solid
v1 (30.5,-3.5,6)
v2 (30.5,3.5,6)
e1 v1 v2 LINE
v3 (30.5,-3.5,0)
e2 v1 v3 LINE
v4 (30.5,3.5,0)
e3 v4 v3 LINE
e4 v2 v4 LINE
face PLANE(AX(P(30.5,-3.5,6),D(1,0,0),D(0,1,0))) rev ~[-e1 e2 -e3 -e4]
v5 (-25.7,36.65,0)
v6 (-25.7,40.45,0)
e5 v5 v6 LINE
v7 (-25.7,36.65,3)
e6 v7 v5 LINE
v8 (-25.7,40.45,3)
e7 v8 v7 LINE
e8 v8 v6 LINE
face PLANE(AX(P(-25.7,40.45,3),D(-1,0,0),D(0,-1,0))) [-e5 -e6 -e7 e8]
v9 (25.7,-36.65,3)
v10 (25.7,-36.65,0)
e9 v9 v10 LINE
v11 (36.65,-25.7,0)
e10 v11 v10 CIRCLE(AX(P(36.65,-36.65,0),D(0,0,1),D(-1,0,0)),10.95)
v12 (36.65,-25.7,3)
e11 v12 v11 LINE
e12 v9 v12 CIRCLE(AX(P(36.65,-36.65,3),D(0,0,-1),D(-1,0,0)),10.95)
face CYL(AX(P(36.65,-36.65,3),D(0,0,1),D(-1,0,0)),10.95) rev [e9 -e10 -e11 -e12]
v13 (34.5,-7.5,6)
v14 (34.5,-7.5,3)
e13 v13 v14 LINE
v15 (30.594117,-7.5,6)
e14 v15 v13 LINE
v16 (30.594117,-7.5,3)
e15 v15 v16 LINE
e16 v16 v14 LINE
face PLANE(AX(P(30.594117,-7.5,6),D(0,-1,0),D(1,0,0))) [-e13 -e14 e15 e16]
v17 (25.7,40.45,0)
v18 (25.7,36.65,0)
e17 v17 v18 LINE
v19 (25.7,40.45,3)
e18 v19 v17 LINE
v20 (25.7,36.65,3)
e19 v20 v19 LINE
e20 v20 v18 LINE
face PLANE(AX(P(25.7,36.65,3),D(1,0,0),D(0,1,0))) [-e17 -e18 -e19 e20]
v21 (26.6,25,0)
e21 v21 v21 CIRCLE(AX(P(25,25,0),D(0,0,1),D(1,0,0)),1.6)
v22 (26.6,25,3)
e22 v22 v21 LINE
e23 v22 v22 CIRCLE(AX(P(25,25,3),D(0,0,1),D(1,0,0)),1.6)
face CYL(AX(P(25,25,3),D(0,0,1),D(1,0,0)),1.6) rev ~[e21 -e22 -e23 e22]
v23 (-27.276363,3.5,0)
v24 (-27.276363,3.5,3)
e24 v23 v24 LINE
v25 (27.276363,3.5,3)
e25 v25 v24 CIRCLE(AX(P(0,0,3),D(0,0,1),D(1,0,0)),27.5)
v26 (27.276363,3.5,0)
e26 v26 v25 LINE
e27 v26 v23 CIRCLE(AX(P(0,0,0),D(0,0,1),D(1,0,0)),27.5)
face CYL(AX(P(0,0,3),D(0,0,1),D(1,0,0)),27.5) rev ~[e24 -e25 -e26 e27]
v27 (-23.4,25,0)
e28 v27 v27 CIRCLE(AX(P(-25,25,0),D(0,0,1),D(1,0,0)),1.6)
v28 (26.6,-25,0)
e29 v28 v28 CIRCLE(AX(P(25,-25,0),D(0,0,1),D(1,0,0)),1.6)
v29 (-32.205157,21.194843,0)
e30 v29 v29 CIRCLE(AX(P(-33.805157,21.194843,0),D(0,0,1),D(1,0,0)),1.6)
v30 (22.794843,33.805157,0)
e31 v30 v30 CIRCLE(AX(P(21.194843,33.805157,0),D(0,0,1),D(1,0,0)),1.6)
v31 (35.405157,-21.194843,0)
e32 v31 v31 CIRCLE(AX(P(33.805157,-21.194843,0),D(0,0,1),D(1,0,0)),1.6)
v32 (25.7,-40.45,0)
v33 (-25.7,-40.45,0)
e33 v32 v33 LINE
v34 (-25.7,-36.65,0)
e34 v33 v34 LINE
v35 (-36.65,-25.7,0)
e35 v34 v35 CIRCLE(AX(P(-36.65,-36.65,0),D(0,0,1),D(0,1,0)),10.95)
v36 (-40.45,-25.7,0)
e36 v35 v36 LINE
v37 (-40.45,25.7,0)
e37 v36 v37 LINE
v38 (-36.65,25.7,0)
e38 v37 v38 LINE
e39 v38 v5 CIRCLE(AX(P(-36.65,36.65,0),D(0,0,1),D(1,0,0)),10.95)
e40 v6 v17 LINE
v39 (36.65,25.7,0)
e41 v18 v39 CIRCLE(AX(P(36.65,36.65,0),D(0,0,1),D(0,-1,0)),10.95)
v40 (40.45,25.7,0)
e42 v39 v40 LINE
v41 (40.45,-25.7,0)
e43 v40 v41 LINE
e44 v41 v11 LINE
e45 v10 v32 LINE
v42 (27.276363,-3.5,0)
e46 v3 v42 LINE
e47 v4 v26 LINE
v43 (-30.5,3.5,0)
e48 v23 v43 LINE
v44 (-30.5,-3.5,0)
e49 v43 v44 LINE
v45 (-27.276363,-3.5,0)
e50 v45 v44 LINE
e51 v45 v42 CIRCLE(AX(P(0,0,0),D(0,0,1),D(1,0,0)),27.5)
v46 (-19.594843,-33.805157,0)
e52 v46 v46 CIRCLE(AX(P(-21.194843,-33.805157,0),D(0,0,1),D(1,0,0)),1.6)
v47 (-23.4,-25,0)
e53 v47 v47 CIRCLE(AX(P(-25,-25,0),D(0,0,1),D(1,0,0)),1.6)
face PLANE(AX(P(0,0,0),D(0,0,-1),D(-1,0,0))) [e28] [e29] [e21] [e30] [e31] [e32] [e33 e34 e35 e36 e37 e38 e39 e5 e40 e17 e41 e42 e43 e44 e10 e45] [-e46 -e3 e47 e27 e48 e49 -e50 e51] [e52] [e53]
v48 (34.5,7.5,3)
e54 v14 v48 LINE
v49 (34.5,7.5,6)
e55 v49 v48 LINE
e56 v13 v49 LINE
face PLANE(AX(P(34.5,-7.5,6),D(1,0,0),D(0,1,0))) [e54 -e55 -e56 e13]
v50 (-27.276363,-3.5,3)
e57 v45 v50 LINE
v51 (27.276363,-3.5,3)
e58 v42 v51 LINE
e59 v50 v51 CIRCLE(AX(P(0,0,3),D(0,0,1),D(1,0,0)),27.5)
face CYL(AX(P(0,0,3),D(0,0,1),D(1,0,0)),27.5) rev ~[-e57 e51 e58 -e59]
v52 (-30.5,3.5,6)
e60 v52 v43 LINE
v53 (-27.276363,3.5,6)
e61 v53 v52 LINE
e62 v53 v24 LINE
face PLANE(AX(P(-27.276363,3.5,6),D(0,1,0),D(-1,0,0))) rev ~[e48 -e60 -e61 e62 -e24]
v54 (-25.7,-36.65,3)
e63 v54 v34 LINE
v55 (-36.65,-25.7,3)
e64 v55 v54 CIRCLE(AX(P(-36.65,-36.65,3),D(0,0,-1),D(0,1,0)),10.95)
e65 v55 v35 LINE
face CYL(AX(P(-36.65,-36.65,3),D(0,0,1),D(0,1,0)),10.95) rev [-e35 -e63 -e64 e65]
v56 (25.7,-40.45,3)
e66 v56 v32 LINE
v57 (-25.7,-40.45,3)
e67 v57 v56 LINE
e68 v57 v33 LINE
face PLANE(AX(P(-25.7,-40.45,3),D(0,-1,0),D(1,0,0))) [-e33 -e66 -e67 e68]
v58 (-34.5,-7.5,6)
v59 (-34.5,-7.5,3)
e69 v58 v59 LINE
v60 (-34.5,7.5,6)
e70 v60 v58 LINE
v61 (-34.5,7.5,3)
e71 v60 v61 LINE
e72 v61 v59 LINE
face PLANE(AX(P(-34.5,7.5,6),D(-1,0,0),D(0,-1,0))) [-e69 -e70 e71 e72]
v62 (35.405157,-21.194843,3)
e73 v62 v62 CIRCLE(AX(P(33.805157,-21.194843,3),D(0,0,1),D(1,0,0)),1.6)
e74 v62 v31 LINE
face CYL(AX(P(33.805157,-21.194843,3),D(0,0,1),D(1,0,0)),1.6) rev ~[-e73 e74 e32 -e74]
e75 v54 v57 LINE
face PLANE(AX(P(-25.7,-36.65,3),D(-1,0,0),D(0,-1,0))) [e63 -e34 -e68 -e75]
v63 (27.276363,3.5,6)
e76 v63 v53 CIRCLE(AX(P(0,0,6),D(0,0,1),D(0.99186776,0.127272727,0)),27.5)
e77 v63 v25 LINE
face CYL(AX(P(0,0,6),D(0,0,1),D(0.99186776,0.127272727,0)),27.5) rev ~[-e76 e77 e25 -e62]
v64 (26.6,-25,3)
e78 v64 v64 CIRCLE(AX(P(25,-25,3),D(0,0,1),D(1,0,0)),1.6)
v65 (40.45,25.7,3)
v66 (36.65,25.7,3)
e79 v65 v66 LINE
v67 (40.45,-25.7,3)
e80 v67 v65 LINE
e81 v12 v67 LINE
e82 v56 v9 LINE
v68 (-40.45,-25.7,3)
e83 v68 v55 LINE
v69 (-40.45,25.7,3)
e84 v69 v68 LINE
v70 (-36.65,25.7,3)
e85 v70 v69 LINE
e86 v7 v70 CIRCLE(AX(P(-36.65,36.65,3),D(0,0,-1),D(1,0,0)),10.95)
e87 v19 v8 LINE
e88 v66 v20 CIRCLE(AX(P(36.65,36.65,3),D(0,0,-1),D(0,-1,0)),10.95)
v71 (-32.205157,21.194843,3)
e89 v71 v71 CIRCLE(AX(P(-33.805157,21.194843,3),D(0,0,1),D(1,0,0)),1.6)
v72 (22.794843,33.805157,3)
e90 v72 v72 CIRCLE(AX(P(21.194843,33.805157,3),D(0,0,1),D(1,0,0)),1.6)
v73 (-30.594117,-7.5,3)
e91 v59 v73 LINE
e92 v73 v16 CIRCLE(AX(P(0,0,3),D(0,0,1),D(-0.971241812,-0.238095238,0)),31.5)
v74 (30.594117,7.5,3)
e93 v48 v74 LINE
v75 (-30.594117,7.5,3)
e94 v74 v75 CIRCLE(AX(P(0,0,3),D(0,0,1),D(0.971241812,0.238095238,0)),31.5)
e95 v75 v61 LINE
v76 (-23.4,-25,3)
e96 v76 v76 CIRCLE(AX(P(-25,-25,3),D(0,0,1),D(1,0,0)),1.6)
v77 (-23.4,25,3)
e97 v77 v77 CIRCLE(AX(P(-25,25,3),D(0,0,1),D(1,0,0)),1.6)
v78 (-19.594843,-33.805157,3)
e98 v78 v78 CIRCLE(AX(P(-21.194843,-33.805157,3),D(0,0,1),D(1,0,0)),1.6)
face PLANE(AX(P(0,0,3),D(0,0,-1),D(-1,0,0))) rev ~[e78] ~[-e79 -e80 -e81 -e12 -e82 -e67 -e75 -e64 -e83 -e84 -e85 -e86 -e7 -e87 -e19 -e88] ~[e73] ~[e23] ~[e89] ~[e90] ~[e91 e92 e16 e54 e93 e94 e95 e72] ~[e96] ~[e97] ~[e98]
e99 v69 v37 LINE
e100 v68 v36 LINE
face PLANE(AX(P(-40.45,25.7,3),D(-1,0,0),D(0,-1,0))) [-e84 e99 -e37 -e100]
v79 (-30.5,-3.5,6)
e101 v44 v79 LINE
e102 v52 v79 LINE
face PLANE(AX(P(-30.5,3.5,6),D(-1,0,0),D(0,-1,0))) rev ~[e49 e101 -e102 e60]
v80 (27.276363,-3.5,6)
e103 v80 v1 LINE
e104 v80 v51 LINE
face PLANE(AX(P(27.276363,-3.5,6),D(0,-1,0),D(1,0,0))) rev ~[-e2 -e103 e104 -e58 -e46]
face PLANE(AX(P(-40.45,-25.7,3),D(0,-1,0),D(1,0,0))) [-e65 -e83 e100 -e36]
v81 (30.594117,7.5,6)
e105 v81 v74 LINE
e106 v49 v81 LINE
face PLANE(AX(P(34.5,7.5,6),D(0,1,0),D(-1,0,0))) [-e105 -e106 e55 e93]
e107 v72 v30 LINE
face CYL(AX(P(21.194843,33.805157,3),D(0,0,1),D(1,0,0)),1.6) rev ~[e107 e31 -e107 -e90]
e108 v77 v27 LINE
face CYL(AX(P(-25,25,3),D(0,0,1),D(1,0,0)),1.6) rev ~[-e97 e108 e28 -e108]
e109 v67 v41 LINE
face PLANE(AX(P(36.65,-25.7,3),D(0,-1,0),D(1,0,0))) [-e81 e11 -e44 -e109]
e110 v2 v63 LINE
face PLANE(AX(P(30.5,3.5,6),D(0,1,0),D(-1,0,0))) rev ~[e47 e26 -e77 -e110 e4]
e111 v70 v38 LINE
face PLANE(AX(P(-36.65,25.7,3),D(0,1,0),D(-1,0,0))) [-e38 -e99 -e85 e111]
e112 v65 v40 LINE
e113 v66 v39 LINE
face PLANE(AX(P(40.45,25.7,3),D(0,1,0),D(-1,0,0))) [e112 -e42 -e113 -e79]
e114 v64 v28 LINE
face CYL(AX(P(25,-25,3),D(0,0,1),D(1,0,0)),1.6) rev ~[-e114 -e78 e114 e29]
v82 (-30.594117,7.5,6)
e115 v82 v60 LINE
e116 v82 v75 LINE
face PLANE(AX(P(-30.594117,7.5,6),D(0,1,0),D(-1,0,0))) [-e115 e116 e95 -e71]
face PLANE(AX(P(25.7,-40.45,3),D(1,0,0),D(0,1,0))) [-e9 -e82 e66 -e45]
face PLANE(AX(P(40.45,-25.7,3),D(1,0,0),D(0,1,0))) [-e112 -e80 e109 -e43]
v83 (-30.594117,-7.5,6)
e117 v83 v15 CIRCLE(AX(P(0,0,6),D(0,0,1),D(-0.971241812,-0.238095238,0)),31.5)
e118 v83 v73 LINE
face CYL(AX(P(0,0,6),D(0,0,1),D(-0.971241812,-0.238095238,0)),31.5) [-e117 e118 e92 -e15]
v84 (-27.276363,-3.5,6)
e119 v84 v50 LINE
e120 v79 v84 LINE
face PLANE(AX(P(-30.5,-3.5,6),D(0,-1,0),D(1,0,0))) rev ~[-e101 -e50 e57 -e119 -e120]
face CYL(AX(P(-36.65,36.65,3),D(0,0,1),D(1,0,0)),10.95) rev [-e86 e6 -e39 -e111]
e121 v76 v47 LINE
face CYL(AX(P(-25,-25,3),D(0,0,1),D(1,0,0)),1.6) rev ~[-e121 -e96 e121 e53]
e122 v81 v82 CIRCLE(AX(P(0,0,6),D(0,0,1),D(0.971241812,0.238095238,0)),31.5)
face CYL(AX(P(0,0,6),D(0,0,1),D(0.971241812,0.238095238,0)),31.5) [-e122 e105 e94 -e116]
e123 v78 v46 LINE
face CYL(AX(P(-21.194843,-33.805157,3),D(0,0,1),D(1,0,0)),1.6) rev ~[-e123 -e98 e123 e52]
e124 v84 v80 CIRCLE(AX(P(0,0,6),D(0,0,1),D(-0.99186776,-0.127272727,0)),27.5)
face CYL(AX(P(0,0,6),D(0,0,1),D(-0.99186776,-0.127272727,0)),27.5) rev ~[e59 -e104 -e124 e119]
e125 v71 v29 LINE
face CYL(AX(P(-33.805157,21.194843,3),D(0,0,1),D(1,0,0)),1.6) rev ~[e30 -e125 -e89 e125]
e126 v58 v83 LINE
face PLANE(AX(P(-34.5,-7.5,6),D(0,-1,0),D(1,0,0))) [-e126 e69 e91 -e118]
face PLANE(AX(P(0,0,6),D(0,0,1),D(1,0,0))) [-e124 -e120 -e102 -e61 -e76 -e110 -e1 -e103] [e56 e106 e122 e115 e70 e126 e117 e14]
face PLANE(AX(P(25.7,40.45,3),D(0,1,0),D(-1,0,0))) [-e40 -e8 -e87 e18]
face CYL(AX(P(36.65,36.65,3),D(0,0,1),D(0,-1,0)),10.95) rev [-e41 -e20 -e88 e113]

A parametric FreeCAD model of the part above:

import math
import FreeCAD as App
import Part
import Sketcher
Q = App.Units.Quantity


def add_polygon(sketch, points):
    """Adds a closed chain of lines whose ends are joined by coincident constraints."""
    first, n = sketch.GeometryCount, len(points)
    for a, b in zip(points, points[1:] + points[:1]):
        sketch.addGeometry(Part.LineSegment(App.Vector(*a, 0), App.Vector(*b, 0)), False)
    for i in range(n):
        sketch.addConstraint(Sketcher.Constraint("Coincident", first + i, 2, first + (i + 1) % n, 1))

doc = App.newDocument("Part")
body = doc.addObject("PartDesign::Body", "Body")

# Sketch on XY plane
sketch1 = doc.addObject("Sketcher::SketchObject", "Sketch")
body.addObject(sketch1)
sketch1.AttachmentSupport = (doc.XY_Plane, [""])
sketch1.MapMode = "FlatFace"
sketch1.addGeometry(Part.LineSegment(App.Vector(27.5, 43.2, 0), App.Vector(-27.5, 43.2, 0)), False)
sketch1.addGeometry(Part.ArcOfCircle(Part.Circle(App.Vector(-27.5, 42.2, 0), App.Vector(0, 0, 1), 1), math.radians(90), math.radians(180)), False)
sketch1.addGeometry(Part.LineSegment(App.Vector(-28.5, 42.2, 0), App.Vector(-28.5, 36.6, 0)), False)
sketch1.addGeometry(Part.ArcOfCircle(Part.Circle(App.Vector(-36.6, 36.6, 0), App.Vector(0, 0, 1), 8.1), math.radians(-90), math.radians(0)), False)
sketch1.addGeometry(Part.LineSegment(App.Vector(-36.6, 28.5, 0), App.Vector(-42.2, 28.5, 0)), False)
sketch1.addGeometry(Part.ArcOfCircle(Part.Circle(App.Vector(-42.2, 27.5, 0), App.Vector(0, 0, 1), 1), math.radians(90), math.radians(180)), False)
sketch1.addGeometry(Part.LineSegment(App.Vector(-43.2, 27.5, 0), App.Vector(-43.2, -27.5, 0)), False)
sketch1.addGeometry(Part.ArcOfCircle(Part.Circle(App.Vector(-42.2, -27.5, 0), App.Vector(0, 0, 1), 1), math.radians(-180), math.radians(-90)), False)
sketch1.addGeometry(Part.LineSegment(App.Vector(-42.2, -28.5, 0), App.Vector(-36.6, -28.5, 0)), False)
sketch1.addGeometry(Part.ArcOfCircle(Part.Circle(App.Vector(-36.6, -36.6, 0), App.Vector(0, 0, 1), 8.1), math.radians(0), math.radians(90)), False)
sketch1.addGeometry(Part.LineSegment(App.Vector(-28.5, -36.6, 0), App.Vector(-28.5, -42.2, 0)), False)
sketch1.addGeometry(Part.ArcOfCircle(Part.Circle(App.Vector(-27.5, -42.2, 0), App.Vector(0, 0, 1), 1), math.radians(-180), math.radians(-90)), False)
sketch1.addGeometry(Part.LineSegment(App.Vector(-27.5, -43.2, 0), App.Vector(27.5, -43.2, 0)), False)
sketch1.addGeometry(Part.ArcOfCircle(Part.Circle(App.Vector(27.5, -42.2, 0), App.Vector(0, 0, 1), 1), math.radians(-90), math.radians(0)), False)
sketch1.addGeometry(Part.LineSegment(App.Vector(28.5, -42.2, 0), App.Vector(28.5, -36.6, 0)), False)
sketch1.addGeometry(Part.ArcOfCircle(Part.Circle(App.Vector(36.6, -36.6, 0), App.Vector(0, 0, 1), 8.1), math.radians(90), math.radians(180)), False)
sketch1.addGeometry(Part.LineSegment(App.Vector(36.6, -28.5, 0), App.Vector(42.2, -28.5, 0)), False)
sketch1.addGeometry(Part.ArcOfCircle(Part.Circle(App.Vector(42.2, -27.5, 0), App.Vector(0, 0, 1), 1), math.radians(-90), math.radians(0)), False)
sketch1.addGeometry(Part.LineSegment(App.Vector(43.2, -27.5, 0), App.Vector(43.2, 27.5, 0)), False)
sketch1.addGeometry(Part.ArcOfCircle(Part.Circle(App.Vector(42.2, 27.5, 0), App.Vector(0, 0, 1), 1), math.radians(0), math.radians(90)), False)
sketch1.addGeometry(Part.LineSegment(App.Vector(42.2, 28.5, 0), App.Vector(36.6, 28.5, 0)), False)
sketch1.addGeometry(Part.ArcOfCircle(Part.Circle(App.Vector(36.6, 36.6, 0), App.Vector(0, 0, 1), 8.1), math.radians(180), math.radians(270)), False)
sketch1.addGeometry(Part.LineSegment(App.Vector(28.5, 36.6, 0), App.Vector(28.5, 42.2, 0)), False)
sketch1.addGeometry(Part.ArcOfCircle(Part.Circle(App.Vector(27.5, 42.2, 0), App.Vector(0, 0, 1), 1), math.radians(0), math.radians(90)), False)
sketch1.addConstraint(Sketcher.Constraint("Tangent", 0, 2, 1, 1))
sketch1.addConstraint(Sketcher.Constraint("Tangent", 1, 2, 2, 1))
sketch1.addConstraint(Sketcher.Constraint("Tangent", 2, 2, 3, 2))
sketch1.addConstraint(Sketcher.Constraint("Tangent", 3, 1, 4, 1))
sketch1.addConstraint(Sketcher.Constraint("Tangent", 4, 2, 5, 1))
sketch1.addConstraint(Sketcher.Constraint("Tangent", 5, 2, 6, 1))
sketch1.addConstraint(Sketcher.Constraint("Tangent", 6, 2, 7, 1))
sketch1.addConstraint(Sketcher.Constraint("Tangent", 7, 2, 8, 1))
sketch1.addConstraint(Sketcher.Constraint("Tangent", 8, 2, 9, 2))
sketch1.addConstraint(Sketcher.Constraint("Tangent", 9, 1, 10, 1))
sketch1.addConstraint(Sketcher.Constraint("Tangent", 10, 2, 11, 1))
sketch1.addConstraint(Sketcher.Constraint("Tangent", 11, 2, 12, 1))
sketch1.addConstraint(Sketcher.Constraint("Tangent", 12, 2, 13, 1))
sketch1.addConstraint(Sketcher.Constraint("Tangent", 13, 2, 14, 1))
sketch1.addConstraint(Sketcher.Constraint("Tangent", 14, 2, 15, 2))
sketch1.addConstraint(Sketcher.Constraint("Tangent", 15, 1, 16, 1))
sketch1.addConstraint(Sketcher.Constraint("Tangent", 16, 2, 17, 1))
sketch1.addConstraint(Sketcher.Constraint("Tangent", 17, 2, 18, 1))
sketch1.addConstraint(Sketcher.Constraint("Tangent", 18, 2, 19, 1))
sketch1.addConstraint(Sketcher.Constraint("Tangent", 19, 2, 20, 1))
sketch1.addConstraint(Sketcher.Constraint("Tangent", 20, 2, 21, 2))
sketch1.addConstraint(Sketcher.Constraint("Tangent", 21, 1, 22, 1))
sketch1.addConstraint(Sketcher.Constraint("Tangent", 22, 2, 23, 1))
sketch1.addConstraint(Sketcher.Constraint("Tangent", 23, 2, 0, 1))
sketch1.addConstraint(Sketcher.Constraint("Horizontal", 0))
sketch1.addConstraint(Sketcher.Constraint("Vertical", 2))
sketch1.addConstraint(Sketcher.Constraint("Horizontal", 4))
sketch1.addConstraint(Sketcher.Constraint("Vertical", 6))
sketch1.addConstraint(Sketcher.Constraint("Horizontal", 8))
sketch1.addConstraint(Sketcher.Constraint("Vertical", 10))
sketch1.addConstraint(Sketcher.Constraint("Horizontal", 12))
sketch1.addConstraint(Sketcher.Constraint("Vertical", 14))
sketch1.addConstraint(Sketcher.Constraint("Horizontal", 16))
sketch1.addConstraint(Sketcher.Constraint("Vertical", 18))
sketch1.addConstraint(Sketcher.Constraint("Horizontal", 20))
sketch1.addConstraint(Sketcher.Constraint("Vertical", 22))
sketch1.addConstraint(Sketcher.Constraint("Equal", 1, 5))
sketch1.addConstraint(Sketcher.Constraint("Equal", 5, 7))
sketch1.addConstraint(Sketcher.Constraint("Equal", 3, 9))
sketch1.addConstraint(Sketcher.Constraint("Equal", 7, 11))
sketch1.addConstraint(Sketcher.Constraint("Equal", 11, 13))
sketch1.addConstraint(Sketcher.Constraint("Equal", 9, 15))
sketch1.addConstraint(Sketcher.Constraint("Equal", 13, 17))
sketch1.addConstraint(Sketcher.Constraint("Equal", 17, 19))
sketch1.addConstraint(Sketcher.Constraint("Equal", 15, 21))
sketch1.addConstraint(Sketcher.Constraint("Equal", 19, 23))
sketch1.addConstraint(Sketcher.Constraint("Symmetric", 1, 3, 13, 3, -1, 1))
sketch1.addConstraint(Sketcher.Constraint("Symmetric", 5, 3, 17, 3, -1, 1))
sketch1.addConstraint(Sketcher.Constraint("Symmetric", 9, 3, 21, 3, -1, 1))
sketch1.addConstraint(Sketcher.Constraint("Symmetric", 9, 3, 15, 3, -2))
sketch1.addConstraint(Sketcher.Constraint("Equal", 20, 2))
sketch1.addConstraint(Sketcher.Constraint("Equal", 12, 6))
sketch1.addConstraint(Sketcher.Constraint("Radius", 1, Q("1 mm")))
sketch1.addConstraint(Sketcher.Constraint("DistanceX", 0, 2, 0, 1, Q("55 mm")))
sketch1.addConstraint(Sketcher.Constraint("Radius", 3, Q("8.15 mm")))
sketch1.addConstraint(Sketcher.Constraint("DistanceX", 4, 2, 4, 1, Q("5.6 mm")))
pad1 = doc.addObject("PartDesign::Pad", "Pad")
body.addObject(pad1)
pad1.Profile = sketch1
pad1.Length = 3

# Sketch on XY plane
sketch2 = doc.addObject("Sketcher::SketchObject", "Sketch001")
body.addObject(sketch2)
sketch2.AttachmentSupport = (doc.XY_Plane, [""])
sketch2.MapMode = "FlatFace"
sketch2.AttachmentOffset = App.Placement(App.Vector(0, 0, 3), App.Rotation())
sketch2.addGeometry(Part.LineSegment(App.Vector(-28.5, 42.2, 0), App.Vector(-28.5, 36.6, 0)), False)
sketch2.addGeometry(Part.ArcOfCircle(Part.Circle(App.Vector(-36.6, 36.6, 0), App.Vector(0, 0, 1), 8.1), math.radians(-90), math.radians(0)), False)
sketch2.addGeometry(Part.LineSegment(App.Vector(-36.6, 28.5, 0), App.Vector(-42.2, 28.5, 0)), False)
sketch2.addGeometry(Part.ArcOfCircle(Part.Circle(App.Vector(-42.2, 27.5, 0), App.Vector(0, 0, 1), 1), math.radians(90), math.radians(180)), False)
sketch2.addGeometry(Part.LineSegment(App.Vector(-43.2, 27.5, 0), App.Vector(-43.2, -27.5, 0)), False)
sketch2.addGeometry(Part.ArcOfCircle(Part.Circle(App.Vector(-42.2, -27.5, 0), App.Vector(0, 0, 1), 1), math.radians(-180), math.radians(-90)), False)
sketch2.addGeometry(Part.LineSegment(App.Vector(-42.2, -28.5, 0), App.Vector(-36.6, -28.5, 0)), False)
sketch2.addGeometry(Part.ArcOfCircle(Part.Circle(App.Vector(-36.6, -36.6, 0), App.Vector(0, 0, 1), 8.1), math.radians(0), math.radians(90)), False)
sketch2.addGeometry(Part.LineSegment(App.Vector(-28.5, -36.6, 0), App.Vector(-28.5, -42.2, 0)), False)
sketch2.addGeometry(Part.ArcOfCircle(Part.Circle(App.Vector(-27.5, -42.2, 0), App.Vector(0, 0, 1), 1), math.radians(-180), math.radians(-90)), False)
sketch2.addGeometry(Part.LineSegment(App.Vector(-27.5, -43.2, 0), App.Vector(27.5, -43.2, 0)), False)
sketch2.addGeometry(Part.ArcOfCircle(Part.Circle(App.Vector(27.5, -42.2, 0), App.Vector(0, 0, 1), 1), math.radians(-90), math.radians(0)), False)
sketch2.addGeometry(Part.LineSegment(App.Vector(28.5, -42.2, 0), App.Vector(28.5, -36.6, 0)), False)
sketch2.addGeometry(Part.ArcOfCircle(Part.Circle(App.Vector(36.6, -36.6, 0), App.Vector(0, 0, 1), 8.1), math.radians(90), math.radians(180)), False)
sketch2.addGeometry(Part.LineSegment(App.Vector(36.6, -28.5, 0), App.Vector(42.2, -28.5, 0)), False)
sketch2.addGeometry(Part.ArcOfCircle(Part.Circle(App.Vector(42.2, -27.5, 0), App.Vector(0, 0, 1), 1), math.radians(-90), math.radians(0)), False)
sketch2.addGeometry(Part.LineSegment(App.Vector(43.2, -27.5, 0), App.Vector(43.2, 27.5, 0)), False)
sketch2.addGeometry(Part.ArcOfCircle(Part.Circle(App.Vector(42.2, 27.5, 0), App.Vector(0, 0, 1), 1), math.radians(0), math.radians(90)), False)
sketch2.addGeometry(Part.LineSegment(App.Vector(42.2, 28.5, 0), App.Vector(36.6, 28.5, 0)), False)
sketch2.addGeometry(Part.ArcOfCircle(Part.Circle(App.Vector(36.6, 36.6, 0), App.Vector(0, 0, 1), 8.1), math.radians(180), math.radians(270)), False)
sketch2.addGeometry(Part.LineSegment(App.Vector(28.5, 36.6, 0), App.Vector(28.5, 42.2, 0)), False)
sketch2.addGeometry(Part.ArcOfCircle(Part.Circle(App.Vector(27.5, 42.2, 0), App.Vector(0, 0, 1), 1), math.radians(0), math.radians(90)), False)
sketch2.addGeometry(Part.LineSegment(App.Vector(27.5, 43.2, 0), App.Vector(-27.5, 43.2, 0)), False)
sketch2.addGeometry(Part.ArcOfCircle(Part.Circle(App.Vector(-27.5, 42.2, 0), App.Vector(0, 0, 1), 1), math.radians(90), math.radians(180)), False)
sketch2.addGeometry(Part.LineSegment(App.Vector(-25.7, 36.6, 0), App.Vector(-25.7, 40.5, 0)), False)
sketch2.addGeometry(Part.LineSegment(App.Vector(-25.7, 40.5, 0), App.Vector(25.7, 40.5, 0)), False)
sketch2.addGeometry(Part.LineSegment(App.Vector(25.7, 40.5, 0), App.Vector(25.7, 36.6, 0)), False)
sketch2.addGeometry(Part.ArcOfCircle(Part.Circle(App.Vector(36.6, 36.6, 0), App.Vector(0, 0, 1), 10.9), math.radians(180), math.radians(270)), False)
sketch2.addGeometry(Part.LineSegment(App.Vector(36.6, 25.7, 0), App.Vector(40.5, 25.7, 0)), False)
sketch2.addGeometry(Part.LineSegment(App.Vector(40.5, 25.7, 0), App.Vector(40.5, -25.7, 0)), False)
sketch2.addGeometry(Part.LineSegment(App.Vector(40.5, -25.7, 0), App.Vector(36.6, -25.7, 0)), False)
sketch2.addGeometry(Part.ArcOfCircle(Part.Circle(App.Vector(36.6, -36.6, 0), App.Vector(0, 0, 1), 10.9), math.radians(90), math.radians(180)), False)
sketch2.addGeometry(Part.LineSegment(App.Vector(25.7, -36.6, 0), App.Vector(25.7, -40.5, 0)), False)
sketch2.addGeometry(Part.LineSegment(App.Vector(25.7, -40.5, 0), App.Vector(-25.7, -40.5, 0)), False)
sketch2.addGeometry(Part.LineSegment(App.Vector(-25.7, -40.5, 0), App.Vector(-25.7, -36.6, 0)), False)
sketch2.addGeometry(Part.ArcOfCircle(Part.Circle(App.Vector(-36.6, -36.6, 0), App.Vector(0, 0, 1), 10.9), math.radians(0), math.radians(90)), False)
sketch2.addGeometry(Part.LineSegment(App.Vector(-36.6, -25.7, 0), App.Vector(-40.5, -25.7, 0)), False)
sketch2.addGeometry(Part.LineSegment(App.Vector(-40.5, -25.7, 0), App.Vector(-40.5, 25.7, 0)), False)
sketch2.addGeometry(Part.LineSegment(App.Vector(-40.5, 25.7, 0), App.Vector(-36.6, 25.7, 0)), False)
sketch2.addGeometry(Part.ArcOfCircle(Part.Circle(App.Vector(-36.6, 36.6, 0), App.Vector(0, 0, 1), 10.9), math.radians(-90), math.radians(0)), False)
sketch2.addConstraint(Sketcher.Constraint("Tangent", 0, 2, 1, 2))
sketch2.addConstraint(Sketcher.Constraint("Tangent", 1, 1, 2, 1))
sketch2.addConstraint(Sketcher.Constraint("Tangent", 2, 2, 3, 1))
sketch2.addConstraint(Sketcher.Constraint("Tangent", 3, 2, 4, 1))
sketch2.addConstraint(Sketcher.Constraint("Tangent", 4, 2, 5, 1))
sketch2.addConstraint(Sketcher.Constraint("Tangent", 5, 2, 6, 1))
sketch2.addConstraint(Sketcher.Constraint("Tangent", 6, 2, 7, 2))
sketch2.addConstraint(Sketcher.Constraint("Tangent", 7, 1, 8, 1))
sketch2.addConstraint(Sketcher.Constraint("Tangent", 8, 2, 9, 1))
sketch2.addConstraint(Sketcher.Constraint("Tangent", 9, 2, 10, 1))
sketch2.addConstraint(Sketcher.Constraint("Tangent", 10, 2, 11, 1))
sketch2.addConstraint(Sketcher.Constraint("Tangent", 11, 2, 12, 1))
sketch2.addConstraint(Sketcher.Constraint("Tangent", 12, 2, 13, 2))
sketch2.addConstraint(Sketcher.Constraint("Tangent", 13, 1, 14, 1))
sketch2.addConstraint(Sketcher.Constraint("Tangent", 14, 2, 15, 1))
sketch2.addConstraint(Sketcher.Constraint("Tangent", 15, 2, 16, 1))
sketch2.addConstraint(Sketcher.Constraint("Tangent", 16, 2, 17, 1))
sketch2.addConstraint(Sketcher.Constraint("Tangent", 17, 2, 18, 1))
sketch2.addConstraint(Sketcher.Constraint("Tangent", 18, 2, 19, 2))
sketch2.addConstraint(Sketcher.Constraint("Tangent", 19, 1, 20, 1))
sketch2.addConstraint(Sketcher.Constraint("Tangent", 20, 2, 21, 1))
sketch2.addConstraint(Sketcher.Constraint("Tangent", 21, 2, 22, 1))
sketch2.addConstraint(Sketcher.Constraint("Tangent", 22, 2, 23, 1))
sketch2.addConstraint(Sketcher.Constraint("Tangent", 23, 2, 0, 1))
sketch2.addConstraint(Sketcher.Constraint("Coincident", 24, 2, 25, 1))
sketch2.addConstraint(Sketcher.Constraint("Coincident", 25, 2, 26, 1))
sketch2.addConstraint(Sketcher.Constraint("Tangent", 26, 2, 27, 1))
sketch2.addConstraint(Sketcher.Constraint("Tangent", 27, 2, 28, 1))
sketch2.addConstraint(Sketcher.Constraint("Coincident", 28, 2, 29, 1))
sketch2.addConstraint(Sketcher.Constraint("Coincident", 29, 2, 30, 1))
sketch2.addConstraint(Sketcher.Constraint("Tangent", 30, 2, 31, 1))
sketch2.addConstraint(Sketcher.Constraint("Tangent", 31, 2, 32, 1))
sketch2.addConstraint(Sketcher.Constraint("Coincident", 32, 2, 33, 1))
sketch2.addConstraint(Sketcher.Constraint("Coincident", 33, 2, 34, 1))
sketch2.addConstraint(Sketcher.Constraint("Tangent", 34, 2, 35, 1))
sketch2.addConstraint(Sketcher.Constraint("Tangent", 35, 2, 36, 1))
sketch2.addConstraint(Sketcher.Constraint("Coincident", 36, 2, 37, 1))
sketch2.addConstraint(Sketcher.Constraint("Coincident", 37, 2, 38, 1))
sketch2.addConstraint(Sketcher.Constraint("Tangent", 38, 2, 39, 1))
sketch2.addConstraint(Sketcher.Constraint("Tangent", 39, 2, 24, 1))
sketch2.addConstraint(Sketcher.Constraint("Vertical", 0))
sketch2.addConstraint(Sketcher.Constraint("Horizontal", 2))
sketch2.addConstraint(Sketcher.Constraint("Vertical", 4))
sketch2.addConstraint(Sketcher.Constraint("Horizontal", 6))
sketch2.addConstraint(Sketcher.Constraint("Vertical", 8))
sketch2.addConstraint(Sketcher.Constraint("Horizontal", 10))
sketch2.addConstraint(Sketcher.Constraint("Vertical", 12))
sketch2.addConstraint(Sketcher.Constraint("Horizontal", 14))
sketch2.addConstraint(Sketcher.Constraint("Vertical", 16))
sketch2.addConstraint(Sketcher.Constraint("Horizontal", 18))
sketch2.addConstraint(Sketcher.Constraint("Vertical", 20))
sketch2.addConstraint(Sketcher.Constraint("Horizontal", 22))
sketch2.addConstraint(Sketcher.Constraint("Vertical", 24))
sketch2.addConstraint(Sketcher.Constraint("Horizontal", 25))
sketch2.addConstraint(Sketcher.Constraint("Vertical", 26))
sketch2.addConstraint(Sketcher.Constraint("Horizontal", 28))
sketch2.addConstraint(Sketcher.Constraint("Vertical", 29))
sketch2.addConstraint(Sketcher.Constraint("Horizontal", 30))
sketch2.addConstraint(Sketcher.Constraint("Vertical", 32))
sketch2.addConstraint(Sketcher.Constraint("Horizontal", 33))
sketch2.addConstraint(Sketcher.Constraint("Vertical", 34))
sketch2.addConstraint(Sketcher.Constraint("Horizontal", 36))
sketch2.addConstraint(Sketcher.Constraint("Vertical", 37))
sketch2.addConstraint(Sketcher.Constraint("Horizontal", 38))
sketch2.addConstraint(Sketcher.Constraint("Coincident", 27, 3, 19, 3))
sketch2.addConstraint(Sketcher.Constraint("Coincident", 31, 3, 13, 3))
sketch2.addConstraint(Sketcher.Constraint("Coincident", 35, 3, 7, 3))
sketch2.addConstraint(Sketcher.Constraint("Coincident", 39, 3, 1, 3))
sketch2.addConstraint(Sketcher.Constraint("Equal", 3, 5))
sketch2.addConstraint(Sketcher.Constraint("Equal", 1, 7))
sketch2.addConstraint(Sketcher.Constraint("Equal", 5, 9))
sketch2.addConstraint(Sketcher.Constraint("Equal", 9, 11))
sketch2.addConstraint(Sketcher.Constraint("Equal", 7, 13))
sketch2.addConstraint(Sketcher.Constraint("Equal", 11, 15))
sketch2.addConstraint(Sketcher.Constraint("Equal", 15, 17))
sketch2.addConstraint(Sketcher.Constraint("Equal", 13, 19))
sketch2.addConstraint(Sketcher.Constraint("Equal", 17, 21))
sketch2.addConstraint(Sketcher.Constraint("Equal", 21, 23))
sketch2.addConstraint(Sketcher.Constraint("Equal", 27, 31))
sketch2.addConstraint(Sketcher.Constraint("Equal", 31, 35))
sketch2.addConstraint(Sketcher.Constraint("Equal", 35, 39))
sketch2.addConstraint(Sketcher.Constraint("Symmetric", 1, 3, 13, 3, -1, 1))
sketch2.addConstraint(Sketcher.Constraint("Symmetric", 5, 3, 17, 3, -1, 1))
sketch2.addConstraint(Sketcher.Constraint("Symmetric", 9, 3, 21, 3, -1, 1))
sketch2.addConstraint(Sketcher.Constraint("Symmetric", 7, 3, 13, 3, -2))
sketch2.addConstraint(Sketcher.Constraint("Equal", 30, 36))
sketch2.addConstraint(Sketcher.Constraint("Equal", 18, 0))
sketch2.addConstraint(Sketcher.Constraint("Equal", 22, 4))
sketch2.addConstraint(Sketcher.Constraint("Equal", 38, 24))
sketch2.addConstraint(Sketcher.Constraint("Equal", 26, 32))
sketch2.addConstraint(Sketcher.Constraint("Radius", 3, Q("1 mm")))
sketch2.addConstraint(Sketcher.Constraint("DistanceX", 10, 1, 10, 2, Q("55 mm")))
sketch2.addConstraint(Sketcher.Constraint("Radius", 1, Q("8.15 mm")))
sketch2.addConstraint(Sketcher.Constraint("Radius", 27, Q("10.95 mm")))
sketch2.addConstraint(Sketcher.Constraint("DistanceX", 2, 2, 2, 1, Q("5.6 mm")))
sketch2.addConstraint(Sketcher.Constraint("DistanceX", 28, 1, 28, 2, Q("3.8 mm")))
pocket1 = doc.addObject("PartDesign::Pocket", "Pocket")
body.addObject(pocket1)
pocket1.Profile = sketch2
pocket1.Type = "ThroughAll"

# Sketch on XY plane
sketch3 = doc.addObject("Sketcher::SketchObject", "Sketch002")
body.addObject(sketch3)
sketch3.AttachmentSupport = (doc.XY_Plane, [""])
sketch3.MapMode = "FlatFace"
sketch3.AttachmentOffset = App.Placement(App.Vector(0, 0, 3), App.Rotation())
sketch3.addGeometry(Part.Circle(App.Vector(-25, 25, 0), App.Vector(0, 0, 1), 1.6), False)
sketch3.addGeometry(Part.Circle(App.Vector(25, 25, 0), App.Vector(0, 0, 1), 1.6), False)
sketch3.addGeometry(Part.Circle(App.Vector(25, -25, 0), App.Vector(0, 0, 1), 1.6), False)
sketch3.addGeometry(Part.Circle(App.Vector(-25, -25, 0), App.Vector(0, 0, 1), 1.6), False)
sketch3.addGeometry(Part.Circle(App.Vector(0, 0, 0), App.Vector(0, 0, 1), 27.5), False)
sketch3.addConstraint(Sketcher.Constraint("Coincident", 4, 3, -1, 1))
sketch3.addConstraint(Sketcher.Constraint("Equal", 0, 1))
sketch3.addConstraint(Sketcher.Constraint("Equal", 1, 2))
sketch3.addConstraint(Sketcher.Constraint("Equal", 2, 3))
sketch3.addConstraint(Sketcher.Constraint("Symmetric", 0, 3, 2, 3, -1, 1))
sketch3.addConstraint(Sketcher.Constraint("Symmetric", 1, 3, 3, 3, -1, 1))
sketch3.addConstraint(Sketcher.Constraint("Symmetric", 0, 3, 1, 3, -2))
sketch3.addConstraint(Sketcher.Constraint("Diameter", 4, Q("55 mm")))
sketch3.addConstraint(Sketcher.Constraint("Diameter", 0, Q("3.2 mm")))
sketch3.addConstraint(Sketcher.Constraint("DistanceX", 0, 3, -1, 1, Q("25 mm")))
sketch3.addConstraint(Sketcher.Constraint("DistanceY", -1, 1, 0, 3, Q("25 mm")))
pocket2 = doc.addObject("PartDesign::Pocket", "Pocket001")
body.addObject(pocket2)
pocket2.Profile = sketch3
pocket2.Type = "ThroughAll"

# Sketch on XY plane
sketch4 = doc.addObject("Sketcher::SketchObject", "Sketch003")
body.addObject(sketch4)
sketch4.AttachmentSupport = (doc.XY_Plane, [""])
sketch4.MapMode = "FlatFace"
sketch4.AttachmentOffset = App.Placement(App.Vector(0, 0, 3), App.Rotation())
sketch4.addGeometry(Part.Circle(App.Vector(-33.8, 21.2, 0), App.Vector(0, 0, 1), 1.6), False)
sketch4.addGeometry(Part.Circle(App.Vector(21.2, 33.8, 0), App.Vector(0, 0, 1), 1.6), False)
sketch4.addGeometry(Part.Circle(App.Vector(33.8, -21.2, 0), App.Vector(0, 0, 1), 1.6), False)
sketch4.addGeometry(Part.Circle(App.Vector(-21.2, -33.8, 0), App.Vector(0, 0, 1), 1.6), False)
sketch4.addConstraint(Sketcher.Constraint("Equal", 0, 1))
sketch4.addConstraint(Sketcher.Constraint("Equal", 1, 2))
sketch4.addConstraint(Sketcher.Constraint("Equal", 2, 3))
sketch4.addConstraint(Sketcher.Constraint("Symmetric", 0, 3, 2, 3, -1, 1))
sketch4.addConstraint(Sketcher.Constraint("Symmetric", 1, 3, 3, 3, -1, 1))
sketch4.addConstraint(Sketcher.Constraint("Diameter", 0, Q("3.2 mm")))
sketch4.addConstraint(Sketcher.Constraint("DistanceX", 0, 3, 1, 3, Q("55 mm")))
sketch4.addConstraint(Sketcher.Constraint("DistanceY", 2, 3, 1, 3, Q("55 mm")))
sketch4.addConstraint(Sketcher.Constraint("DistanceX", 0, 3, -1, 1, Q("33.805157 mm")))
sketch4.addConstraint(Sketcher.Constraint("DistanceY", -1, 1, 0, 3, Q("21.194843 mm")))
pocket3 = doc.addObject("PartDesign::Pocket", "Pocket002")
body.addObject(pocket3)
pocket3.Profile = sketch4
pocket3.Type = "ThroughAll"

# Sketch on XY plane
sketch5 = doc.addObject("Sketcher::SketchObject", "Sketch004")
body.addObject(sketch5)
sketch5.AttachmentSupport = (doc.XY_Plane, [""])
sketch5.MapMode = "FlatFace"
sketch5.AttachmentOffset = App.Placement(App.Vector(0, 0, 3), App.Rotation())
add_polygon(sketch5, [(-30, 4), (-30, -4), (30, -4), (30, 4)])  # lines 0-3
sketch5.addConstraint(Sketcher.Constraint("Vertical", 0))
sketch5.addConstraint(Sketcher.Constraint("Horizontal", 1))
sketch5.addConstraint(Sketcher.Constraint("Vertical", 2))
sketch5.addConstraint(Sketcher.Constraint("Horizontal", 3))
sketch5.addConstraint(Sketcher.Constraint("Symmetric", 0, 2, 2, 2, -1, 1))
sketch5.addConstraint(Sketcher.Constraint("DistanceX", 1, 1, 1, 2, Q("61 mm")))
sketch5.addConstraint(Sketcher.Constraint("DistanceY", 0, 2, 0, 1, Q("7 mm")))
pocket4 = doc.addObject("PartDesign::Pocket", "Pocket003")
body.addObject(pocket4)
pocket4.Profile = sketch5
pocket4.Type = "ThroughAll"

# Sketch on XY plane
sketch6 = doc.addObject("Sketcher::SketchObject", "Sketch005")
body.addObject(sketch6)
sketch6.AttachmentSupport = (doc.XY_Plane, [""])
sketch6.MapMode = "FlatFace"
sketch6.AttachmentOffset = App.Placement(App.Vector(0, 0, 6), App.Rotation())
sketch6.addGeometry(Part.LineSegment(App.Vector(-34.5, -7.5, 0), App.Vector(-30.6, -7.5, 0)), False)
sketch6.addGeometry(Part.ArcOfCircle(Part.Circle(App.Vector(0, 0, 0), App.Vector(0, 0, 1), 31.5), math.radians(-166), math.radians(-14)), False)
sketch6.addGeometry(Part.LineSegment(App.Vector(30.6, -7.5, 0), App.Vector(34.5, -7.5, 0)), False)
sketch6.addGeometry(Part.LineSegment(App.Vector(34.5, -7.5, 0), App.Vector(34.5, 7.5, 0)), False)
sketch6.addGeometry(Part.LineSegment(App.Vector(34.5, 7.5, 0), App.Vector(30.6, 7.5, 0)), False)
sketch6.addGeometry(Part.ArcOfCircle(Part.Circle(App.Vector(0, 0, 0), App.Vector(0, 0, 1), 31.5), math.radians(14), math.radians(166)), False)
sketch6.addGeometry(Part.LineSegment(App.Vector(-30.6, 7.5, 0), App.Vector(-34.5, 7.5, 0)), False)
sketch6.addGeometry(Part.LineSegment(App.Vector(-34.5, 7.5, 0), App.Vector(-34.5, -7.5, 0)), False)
sketch6.addGeometry(Part.LineSegment(App.Vector(-27.3, -3.5, 0), App.Vector(-30.5, -3.5, 0)), False)
sketch6.addGeometry(Part.LineSegment(App.Vector(-30.5, -3.5, 0), App.Vector(-30.5, 3.5, 0)), False)
sketch6.addGeometry(Part.LineSegment(App.Vector(-30.5, 3.5, 0), App.Vector(-27.3, 3.5, 0)), False)
sketch6.addGeometry(Part.ArcOfCircle(Part.Circle(App.Vector(0, 0, 0), App.Vector(0, 0, 1), 27.5), math.radians(7), math.radians(173)), False)
sketch6.addGeometry(Part.LineSegment(App.Vector(27.3, 3.5, 0), App.Vector(30.5, 3.5, 0)), False)
sketch6.addGeometry(Part.LineSegment(App.Vector(30.5, 3.5, 0), App.Vector(30.5, -3.5, 0)), False)
sketch6.addGeometry(Part.LineSegment(App.Vector(30.5, -3.5, 0), App.Vector(27.3, -3.5, 0)), False)
sketch6.addGeometry(Part.ArcOfCircle(Part.Circle(App.Vector(0, 0, 0), App.Vector(0, 0, 1), 27.5), math.radians(-173), math.radians(-7)), False)
sketch6.addConstraint(Sketcher.Constraint("Coincident", 0, 2, 1, 1))
sketch6.addConstraint(Sketcher.Constraint("Coincident", 1, 2, 2, 1))
sketch6.addConstraint(Sketcher.Constraint("Coincident", 2, 2, 3, 1))
sketch6.addConstraint(Sketcher.Constraint("Coincident", 3, 2, 4, 1))
sketch6.addConstraint(Sketcher.Constraint("Coincident", 4, 2, 5, 1))
sketch6.addConstraint(Sketcher.Constraint("Coincident", 5, 2, 6, 1))
sketch6.addConstraint(Sketcher.Constraint("Coincident", 6, 2, 7, 1))
sketch6.addConstraint(Sketcher.Constraint("Coincident", 7, 2, 0, 1))
sketch6.addConstraint(Sketcher.Constraint("Coincident", 8, 2, 9, 1))
sketch6.addConstraint(Sketcher.Constraint("Coincident", 9, 2, 10, 1))
sketch6.addConstraint(Sketcher.Constraint("Coincident", 10, 2, 11, 2))
sketch6.addConstraint(Sketcher.Constraint("Coincident", 11, 1, 12, 1))
sketch6.addConstraint(Sketcher.Constraint("Coincident", 12, 2, 13, 1))
sketch6.addConstraint(Sketcher.Constraint("Coincident", 13, 2, 14, 1))
sketch6.addConstraint(Sketcher.Constraint("Coincident", 14, 2, 15, 2))
sketch6.addConstraint(Sketcher.Constraint("Coincident", 15, 1, 8, 1))
sketch6.addConstraint(Sketcher.Constraint("Horizontal", 0))
sketch6.addConstraint(Sketcher.Constraint("Horizontal", 2))
sketch6.addConstraint(Sketcher.Constraint("Vertical", 3))
sketch6.addConstraint(Sketcher.Constraint("Horizontal", 4))
sketch6.addConstraint(Sketcher.Constraint("Horizontal", 6))
sketch6.addConstraint(Sketcher.Constraint("Vertical", 7))
sketch6.addConstraint(Sketcher.Constraint("Horizontal", 8))
sketch6.addConstraint(Sketcher.Constraint("Vertical", 9))
sketch6.addConstraint(Sketcher.Constraint("Horizontal", 10))
sketch6.addConstraint(Sketcher.Constraint("Horizontal", 12))
sketch6.addConstraint(Sketcher.Constraint("Vertical", 13))
sketch6.addConstraint(Sketcher.Constraint("Horizontal", 14))
sketch6.addConstraint(Sketcher.Constraint("Coincident", 1, 3, -1, 1))
sketch6.addConstraint(Sketcher.Constraint("Coincident", 5, 3, -1, 1))
sketch6.addConstraint(Sketcher.Constraint("Coincident", 11, 3, -1, 1))
sketch6.addConstraint(Sketcher.Constraint("Coincident", 15, 3, -1, 1))
sketch6.addConstraint(Sketcher.Constraint("Equal", 1, 5))
sketch6.addConstraint(Sketcher.Constraint("Equal", 11, 15))
sketch6.addConstraint(Sketcher.Constraint("Symmetric", 2, 2, 6, 2, -1, 1))
sketch6.addConstraint(Sketcher.Constraint("Symmetric", 8, 2, 12, 2, -1, 1))
sketch6.addConstraint(Sketcher.Constraint("Horizontal", 0, 2, 1, 2))
sketch6.addConstraint(Sketcher.Constraint("Horizontal", 4, 2, 5, 2))
sketch6.addConstraint(Sketcher.Constraint("Horizontal", 10, 2, 11, 1))
sketch6.addConstraint(Sketcher.Constraint("Horizontal", 8, 2, 13, 2))
sketch6.addConstraint(Sketcher.Constraint("Radius", 1, Q("31.5 mm")))
sketch6.addConstraint(Sketcher.Constraint("Radius", 11, Q("27.5 mm")))
sketch6.addConstraint(Sketcher.Constraint("DistanceY", 3, 1, 3, 2, Q("15 mm")))
sketch6.addConstraint(Sketcher.Constraint("DistanceY", 9, 1, 9, 2, Q("7 mm")))
sketch6.addConstraint(Sketcher.Constraint("DistanceX", 7, 2, 8, 2, Q("4 mm")))
sketch6.addConstraint(Sketcher.Constraint("DistanceX", -1, 1, 2, 2, Q("34.5 mm")))
pad2 = doc.addObject("PartDesign::Pad", "Pad001")
body.addObject(pad2)
pad2.Profile = sketch6
pad2.Length = 3
pad2.Reversed = True

doc.recompute()
